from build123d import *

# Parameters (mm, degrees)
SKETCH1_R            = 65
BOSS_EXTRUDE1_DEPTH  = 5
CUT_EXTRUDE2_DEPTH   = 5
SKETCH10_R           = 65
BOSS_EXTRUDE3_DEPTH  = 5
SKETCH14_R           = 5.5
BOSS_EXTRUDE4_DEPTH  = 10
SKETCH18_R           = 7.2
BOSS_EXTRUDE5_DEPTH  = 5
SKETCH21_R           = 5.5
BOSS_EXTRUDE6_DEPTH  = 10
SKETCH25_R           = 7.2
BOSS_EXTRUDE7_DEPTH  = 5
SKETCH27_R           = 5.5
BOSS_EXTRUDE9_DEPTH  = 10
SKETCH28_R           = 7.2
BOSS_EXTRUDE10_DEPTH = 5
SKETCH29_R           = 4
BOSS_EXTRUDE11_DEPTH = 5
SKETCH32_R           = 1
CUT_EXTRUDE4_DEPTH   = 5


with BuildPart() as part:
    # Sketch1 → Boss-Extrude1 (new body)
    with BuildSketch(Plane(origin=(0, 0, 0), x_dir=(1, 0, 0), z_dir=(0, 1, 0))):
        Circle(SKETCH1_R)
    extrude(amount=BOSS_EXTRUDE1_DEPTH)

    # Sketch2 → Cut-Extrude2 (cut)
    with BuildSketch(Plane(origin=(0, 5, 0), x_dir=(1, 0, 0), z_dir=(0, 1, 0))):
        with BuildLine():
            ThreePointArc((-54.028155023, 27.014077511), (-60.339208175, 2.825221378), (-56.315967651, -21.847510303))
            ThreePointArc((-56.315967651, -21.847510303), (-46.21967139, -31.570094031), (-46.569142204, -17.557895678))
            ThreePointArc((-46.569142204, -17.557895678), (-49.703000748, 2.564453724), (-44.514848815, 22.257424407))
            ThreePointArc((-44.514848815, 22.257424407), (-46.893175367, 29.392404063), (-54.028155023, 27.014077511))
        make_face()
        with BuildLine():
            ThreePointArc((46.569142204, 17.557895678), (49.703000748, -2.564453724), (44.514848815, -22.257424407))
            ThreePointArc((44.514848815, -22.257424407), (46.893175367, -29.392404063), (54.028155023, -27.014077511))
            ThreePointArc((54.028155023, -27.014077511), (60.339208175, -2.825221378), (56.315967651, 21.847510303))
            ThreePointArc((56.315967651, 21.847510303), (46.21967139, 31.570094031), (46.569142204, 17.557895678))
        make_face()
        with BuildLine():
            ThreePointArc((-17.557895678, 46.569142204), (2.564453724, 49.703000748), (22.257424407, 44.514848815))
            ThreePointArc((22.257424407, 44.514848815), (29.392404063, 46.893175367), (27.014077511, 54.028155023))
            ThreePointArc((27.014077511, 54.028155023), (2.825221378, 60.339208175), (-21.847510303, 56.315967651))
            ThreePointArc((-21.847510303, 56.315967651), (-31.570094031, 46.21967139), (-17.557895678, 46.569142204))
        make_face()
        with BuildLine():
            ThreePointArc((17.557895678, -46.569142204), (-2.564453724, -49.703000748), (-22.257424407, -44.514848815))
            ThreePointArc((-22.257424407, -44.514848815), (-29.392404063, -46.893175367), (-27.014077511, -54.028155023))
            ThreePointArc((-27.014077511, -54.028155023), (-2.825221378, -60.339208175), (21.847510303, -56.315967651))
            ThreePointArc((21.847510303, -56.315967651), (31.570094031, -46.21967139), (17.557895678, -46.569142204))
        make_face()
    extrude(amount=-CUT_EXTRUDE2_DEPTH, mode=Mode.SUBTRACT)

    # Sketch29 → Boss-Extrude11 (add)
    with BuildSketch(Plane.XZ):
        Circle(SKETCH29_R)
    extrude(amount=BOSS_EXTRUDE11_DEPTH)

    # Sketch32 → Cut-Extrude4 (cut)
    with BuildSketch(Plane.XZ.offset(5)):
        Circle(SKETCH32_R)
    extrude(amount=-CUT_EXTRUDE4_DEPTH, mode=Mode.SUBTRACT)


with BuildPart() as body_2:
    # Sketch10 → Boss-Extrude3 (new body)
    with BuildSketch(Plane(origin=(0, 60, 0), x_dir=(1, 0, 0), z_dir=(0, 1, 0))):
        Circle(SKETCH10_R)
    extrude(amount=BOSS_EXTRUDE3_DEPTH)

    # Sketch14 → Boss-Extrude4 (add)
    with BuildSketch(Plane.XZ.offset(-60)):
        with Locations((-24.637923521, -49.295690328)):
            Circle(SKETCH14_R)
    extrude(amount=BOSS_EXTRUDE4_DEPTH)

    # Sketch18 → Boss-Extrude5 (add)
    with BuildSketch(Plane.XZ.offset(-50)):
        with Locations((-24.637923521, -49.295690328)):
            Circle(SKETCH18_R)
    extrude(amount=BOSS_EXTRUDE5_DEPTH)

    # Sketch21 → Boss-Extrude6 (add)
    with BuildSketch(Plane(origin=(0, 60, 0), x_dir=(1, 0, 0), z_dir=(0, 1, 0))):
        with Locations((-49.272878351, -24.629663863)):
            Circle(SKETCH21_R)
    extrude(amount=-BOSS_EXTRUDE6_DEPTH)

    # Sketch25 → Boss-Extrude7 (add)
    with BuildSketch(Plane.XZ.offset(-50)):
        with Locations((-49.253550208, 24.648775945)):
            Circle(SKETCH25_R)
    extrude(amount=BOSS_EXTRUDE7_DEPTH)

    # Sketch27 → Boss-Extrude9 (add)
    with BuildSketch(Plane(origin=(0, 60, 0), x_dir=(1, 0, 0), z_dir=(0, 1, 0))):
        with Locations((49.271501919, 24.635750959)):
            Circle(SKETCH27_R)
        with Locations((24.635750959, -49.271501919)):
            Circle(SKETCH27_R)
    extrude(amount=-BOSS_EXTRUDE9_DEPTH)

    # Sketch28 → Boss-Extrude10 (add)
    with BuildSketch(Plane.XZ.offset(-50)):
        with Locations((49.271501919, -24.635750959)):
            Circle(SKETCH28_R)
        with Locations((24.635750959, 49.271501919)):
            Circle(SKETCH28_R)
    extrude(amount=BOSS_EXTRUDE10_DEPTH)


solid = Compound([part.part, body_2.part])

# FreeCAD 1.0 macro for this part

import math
import FreeCAD as App
import Part
import Sketcher

doc = App.newDocument("Part")
body = doc.addObject("PartDesign::Body", "Body")

sketch1 = body.newObject("Sketcher::SketchObject", "Sketch")
sketch1.AttachmentSupport = (doc.getObject("XZ_Plane"), [""])
sketch1.MapMode = "FlatFace"
sketch1.addGeometry(Part.Circle(App.Vector(0, 0, 0), App.Vector(0, 0, 1), 65), False)
sketch1.addConstraint([
    Sketcher.Constraint("Coincident", 0, 3, -1, 1),
    Sketcher.Constraint("Diameter", 0, 130.0),
])
pad1 = body.newObject("PartDesign::Pad", "Pad")
pad1.Profile = sketch1
pad1.Length = 5
pad1.Reversed = True

sketch2 = body.newObject("Sketcher::SketchObject", "Sketch001")
sketch2.AttachmentSupport = (doc.getObject("XZ_Plane"), [""])
sketch2.MapMode = "FlatFace"
sketch2.AttachmentOffset = App.Placement(App.Vector(0, 0, -5), App.Rotation())
sketch2.addGeometry([
    Part.ArcOfCircle(Part.Circle(App.Vector(0, 0, 0), App.Vector(0, 0, 1), 60), math.radians(159), math.radians(207)),
    Part.ArcOfCircle(Part.Circle(App.Vector(-49, 25, 0), App.Vector(0, 0, 1), 8), math.radians(-69), math.radians(202)),
    Part.ArcOfCircle(Part.Circle(App.Vector(0, 0, 0), App.Vector(0, 0, 1), 50), math.radians(159), math.radians(207)),
    Part.ArcOfCircle(Part.Circle(App.Vector(-49, -25, 0), App.Vector(0, 0, 1), 5), math.radians(-153), math.radians(27)),
    Part.ArcOfCircle(Part.Circle(App.Vector(0, 0, 0), App.Vector(0, 0, 1), 50), math.radians(-21), math.radians(27)),
    Part.ArcOfCircle(Part.Circle(App.Vector(49, 25, 0), App.Vector(0, 0, 1), 5), math.radians(27), math.radians(207)),
    Part.ArcOfCircle(Part.Circle(App.Vector(0, 0, 0), App.Vector(0, 0, 1), 60), math.radians(-21), math.radians(27)),
    Part.ArcOfCircle(Part.Circle(App.Vector(49, -25, 0), App.Vector(0, 0, 1), 8), math.radians(111), math.radians(382)),
    Part.ArcOfCircle(Part.Circle(App.Vector(0, 0, 0), App.Vector(0, 0, 1), 50), math.radians(-111), math.radians(-63)),
    Part.ArcOfCircle(Part.Circle(App.Vector(25, -49, 0), App.Vector(0, 0, 1), 5), math.radians(-63), math.radians(117)),
    Part.ArcOfCircle(Part.Circle(App.Vector(0, 0, 0), App.Vector(0, 0, 1), 60), math.radians(-111), math.radians(-63)),
    Part.ArcOfCircle(Part.Circle(App.Vector(-25, -49, 0), App.Vector(0, 0, 1), 8), math.radians(21), math.radians(292)),
    Part.ArcOfCircle(Part.Circle(App.Vector(0, 0, 0), App.Vector(0, 0, 1), 50), math.radians(69), math.radians(117)),
    Part.ArcOfCircle(Part.Circle(App.Vector(-25, 49, 0), App.Vector(0, 0, 1), 5), math.radians(117), math.radians(297)),
    Part.ArcOfCircle(Part.Circle(App.Vector(0, 0, 0), App.Vector(0, 0, 1), 60), math.radians(69), math.radians(117)),
    Part.ArcOfCircle(Part.Circle(App.Vector(25, 49, 0), App.Vector(0, 0, 1), 8), math.radians(-159), math.radians(112)),
], False)
sketch2.addConstraint([
    Sketcher.Constraint("Coincident", 0, 1, 1, 2),
    Sketcher.Constraint("Coincident", 1, 1, 2, 1),
    Sketcher.Constraint("Tangent", 2, 2, 3, 2),
    Sketcher.Constraint("Tangent", 3, 1, 0, 2),
    Sketcher.Constraint("Tangent", 4, 2, 5, 2),
    Sketcher.Constraint("Tangent", 5, 1, 6, 2),
    Sketcher.Constraint("Coincident", 6, 1, 7, 2),
    Sketcher.Constraint("Coincident", 7, 1, 4, 1),
    Sketcher.Constraint("Tangent", 8, 2, 9, 2),
    Sketcher.Constraint("Tangent", 9, 1, 10, 2),
    Sketcher.Constraint("Coincident", 10, 1, 11, 2),
    Sketcher.Constraint("Coincident", 11, 1, 8, 1),
    Sketcher.Constraint("Tangent", 12, 2, 13, 2),
    Sketcher.Constraint("Tangent", 13, 1, 14, 2),
    Sketcher.Constraint("Coincident", 14, 1, 15, 2),
    Sketcher.Constraint("Coincident", 15, 1, 12, 1),
    Sketcher.Constraint("Coincident", 0, 3, -1, 1),
    Sketcher.Constraint("Coincident", 2, 3, -1, 1),
    Sketcher.Constraint("Coincident", 4, 3, -1, 1),
    Sketcher.Constraint("Coincident", 6, 3, -1, 1),
    Sketcher.Constraint("Coincident", 8, 3, -1, 1),
    Sketcher.Constraint("Coincident", 10, 3, -1, 1),
    Sketcher.Constraint("Coincident", 12, 3, -1, 1),
    Sketcher.Constraint("Coincident", 14, 3, -1, 1),
    Sketcher.Constraint("Equal", 2, 4),
    Sketcher.Constraint("Equal", 3, 5),
    Sketcher.Constraint("Equal", 1, 7),
    Sketcher.Constraint("Equal", 4, 8),
    Sketcher.Constraint("Equal", 5, 9),
    Sketcher.Constraint("Equal", 7, 11),
    Sketcher.Constraint("Equal", 8, 12),
    Sketcher.Constraint("Equal", 9, 13),
    Sketcher.Constraint("Equal", 11, 15),
    Sketcher.Constraint("Symmetric", 1, 3, 7, 3, -1, 1),
    Sketcher.Constraint("Symmetric", 11, 3, 15, 3, -1, 1),
    Sketcher.Constraint("Symmetric", 1, 3, 5, 3, -2),
    Sketcher.Constraint("Symmetric", 9, 3, 11, 3, -2),
    Sketcher.Constraint("Horizontal", 3, 3, 7, 3),
    Sketcher.Constraint("Horizontal", 13, 3, 15, 3),
    Sketcher.Constraint("Radius", 1, 7.576198),
    Sketcher.Constraint("Radius", 3, 5.3181),
    Sketcher.Constraint("Radius", 0, 60.405314),
    Sketcher.Constraint("DistanceX", 1, 3, -1, 1, 49.271502),
    Sketcher.Constraint("DistanceY", 9, 3, -1, 1, 49.271502),
])
pocket1 = body.newObject("PartDesign::Pocket", "Pocket")
pocket1.Profile = sketch2
pocket1.Length = 5
pocket1.Reversed = True

sketch3 = body.newObject("Sketcher::SketchObject", "Sketch002")
sketch3.AttachmentSupport = (doc.getObject("XZ_Plane"), [""])
sketch3.MapMode = "FlatFace"
sketch3.addGeometry(Part.Circle(App.Vector(0, 0, 0), App.Vector(0, 0, 1), 4), False)
sketch3.addConstraint([
    Sketcher.Constraint("Coincident", 0, 3, -1, 1),
    Sketcher.Constraint("Diameter", 0, 8.0),
])
pad2 = body.newObject("PartDesign::Pad", "Pad001")
pad2.Profile = sketch3
pad2.Length = 5

sketch4 = body.newObject("Sketcher::SketchObject", "Sketch003")
sketch4.AttachmentSupport = (doc.getObject("XZ_Plane"), [""])
sketch4.MapMode = "FlatFace"
sketch4.AttachmentOffset = App.Placement(App.Vector(0, 0, 5), App.Rotation())
sketch4.addGeometry(Part.Circle(App.Vector(0, 0, 0), App.Vector(0, 0, 1), 1), False)
sketch4.addConstraint([
    Sketcher.Constraint("Coincident", 0, 3, -1, 1),
    Sketcher.Constraint("Diameter", 0, 2.0),
])
pocket2 = body.newObject("PartDesign::Pocket", "Pocket001")
pocket2.Profile = sketch4
pocket2.Length = 5
body2 = doc.addObject("PartDesign::Body", "Body001")

sketch5 = body2.newObject("Sketcher::SketchObject", "Sketch004")
sketch5.AttachmentSupport = (doc.getObject("XZ_Plane001"), [""])
sketch5.MapMode = "FlatFace"
sketch5.AttachmentOffset = App.Placement(App.Vector(0, 0, -60), App.Rotation())
sketch5.addGeometry(Part.Circle(App.Vector(0, 0, 0), App.Vector(0, 0, 1), 65), False)
sketch5.addConstraint([
    Sketcher.Constraint("Coincident", 0, 3, -1, 1),
    Sketcher.Constraint("Diameter", 0, 130.0),
])
pad3 = body2.newObject("PartDesign::Pad", "Pad002")
pad3.Profile = sketch5
pad3.Length = 5
pad3.Reversed = True

sketch6 = body2.newObject("Sketcher::SketchObject", "Sketch005")
sketch6.AttachmentSupport = (doc.getObject("XZ_Plane001"), [""])
sketch6.MapMode = "FlatFace"
sketch6.AttachmentOffset = App.Placement(App.Vector(0, 0, -60), App.Rotation())
sketch6.addGeometry(Part.Circle(App.Vector(-25, -49, 0), App.Vector(0, 0, 1), 6), False)
sketch6.addConstraint([
    Sketcher.Constraint("Diameter", 0, 11.0),
    Sketcher.Constraint("DistanceY", 0, 3, -1, 1, 49.29569),
    Sketcher.Constraint("DistanceX", 0, 3, -1, 1, 24.637924),
])
pad4 = body2.newObject("PartDesign::Pad", "Pad003")
pad4.Profile = sketch6
pad4.Length = 10

sketch7 = body2.newObject("Sketcher::SketchObject", "Sketch006")
sketch7.AttachmentSupport = (doc.getObject("XZ_Plane001"), [""])
sketch7.MapMode = "FlatFace"
sketch7.AttachmentOffset = App.Placement(App.Vector(0, 0, -50), App.Rotation())
sketch7.addGeometry(Part.Circle(App.Vector(-25, -49, 0), App.Vector(0, 0, 1), 7), False)
sketch7.addConstraint([
    Sketcher.Constraint("Diameter", 0, 14.4),
    Sketcher.Constraint("DistanceY", 0, 3, -1, 1, 49.29569),
    Sketcher.Constraint("DistanceX", 0, 3, -1, 1, 24.637924),
])
pad5 = body2.newObject("PartDesign::Pad", "Pad004")
pad5.Profile = sketch7
pad5.Length = 5

sketch8 = body2.newObject("Sketcher::SketchObject", "Sketch007")
sketch8.AttachmentSupport = (doc.getObject("XZ_Plane001"), [""])
sketch8.MapMode = "FlatFace"
sketch8.AttachmentOffset = App.Placement(App.Vector(0, 0, -60), App.Rotation())
sketch8.addGeometry(Part.Circle(App.Vector(-49, 25, 0), App.Vector(0, 0, 1), 6), False)
sketch8.addConstraint([
    Sketcher.Constraint("Diameter", 0, 11.0),
    Sketcher.Constraint("DistanceX", 0, 3, -1, 1, 49.272878),
    Sketcher.Constraint("DistanceY", -1, 1, 0, 3, 24.629664),
])
pad6 = body2.newObject("PartDesign::Pad", "Pad005")
pad6.Profile = sketch8
pad6.Length = 10

sketch9 = body2.newObject("Sketcher::SketchObject", "Sketch008")
sketch9.AttachmentSupport = (doc.getObject("XZ_Plane001"), [""])
sketch9.MapMode = "FlatFace"
sketch9.AttachmentOffset = App.Placement(App.Vector(0, 0, -50), App.Rotation())
sketch9.addGeometry(Part.Circle(App.Vector(-49, 25, 0), App.Vector(0, 0, 1), 7), False)
sketch9.addConstraint([
    Sketcher.Constraint("Diameter", 0, 14.4),
    Sketcher.Constraint("DistanceX", 0, 3, -1, 1, 49.25355),
    Sketcher.Constraint("DistanceY", -1, 1, 0, 3, 24.648776),
])
pad7 = body2.newObject("PartDesign::Pad", "Pad006")
pad7.Profile = sketch9
pad7.Length = 5

sketch10 = body2.newObject("Sketcher::SketchObject", "Sketch009")
sketch10.AttachmentSupport = (doc.getObject("XZ_Plane001"), [""])
sketch10.MapMode = "FlatFace"
sketch10.AttachmentOffset = App.Placement(App.Vector(0, 0, -60), App.Rotation())
sketch10.addGeometry([
    Part.Circle(App.Vector(49, -25, 0), App.Vector(0, 0, 1), 6),
    Part.Circle(App.Vector(25, 49, 0), App.Vector(0, 0, 1), 6),
], False)
sketch10.addConstraint([
    Sketcher.Constraint("Equal", 0, 1),
    Sketcher.Constraint("Diameter", 0, 11.0),
    Sketcher.Constraint("DistanceX", -1, 1, 0, 3, 49.271502),
    Sketcher.Constraint("DistanceY", -1, 1, 1, 3, 49.271502),
    Sketcher.Constraint("DistanceY", 0, 3, -1, 1, 24.635751),
    Sketcher.Constraint("DistanceX", -1, 1, 1, 3, 24.635751),
])
pad8 = body2.newObject("PartDesign::Pad", "Pad007")
pad8.Profile = sketch10
pad8.Length = 10

sketch11 = body2.newObject("Sketcher::SketchObject", "Sketch010")
sketch11.AttachmentSupport = (doc.getObject("XZ_Plane001"), [""])
sketch11.MapMode = "FlatFace"
sketch11.AttachmentOffset = App.Placement(App.Vector(0, 0, -50), App.Rotation())
sketch11.addGeometry([
    Part.Circle(App.Vector(49, -25, 0), App.Vector(0, 0, 1), 7),
    Part.Circle(App.Vector(25, 49, 0), App.Vector(0, 0, 1), 7),
], False)
sketch11.addConstraint([
    Sketcher.Constraint("Equal", 0, 1),
    Sketcher.Constraint("Diameter", 0, 14.4),
    Sketcher.Constraint("DistanceX", -1, 1, 0, 3, 49.271502),
    Sketcher.Constraint("DistanceY", -1, 1, 1, 3, 49.271502),
    Sketcher.Constraint("DistanceY", 0, 3, -1, 1, 24.635751),
    Sketcher.Constraint("DistanceX", -1, 1, 1, 3, 24.635751),
])
pad9 = body2.newObject("PartDesign::Pad", "Pad008")
pad9.Profile = sketch11
pad9.Length = 5

doc.recompute()
